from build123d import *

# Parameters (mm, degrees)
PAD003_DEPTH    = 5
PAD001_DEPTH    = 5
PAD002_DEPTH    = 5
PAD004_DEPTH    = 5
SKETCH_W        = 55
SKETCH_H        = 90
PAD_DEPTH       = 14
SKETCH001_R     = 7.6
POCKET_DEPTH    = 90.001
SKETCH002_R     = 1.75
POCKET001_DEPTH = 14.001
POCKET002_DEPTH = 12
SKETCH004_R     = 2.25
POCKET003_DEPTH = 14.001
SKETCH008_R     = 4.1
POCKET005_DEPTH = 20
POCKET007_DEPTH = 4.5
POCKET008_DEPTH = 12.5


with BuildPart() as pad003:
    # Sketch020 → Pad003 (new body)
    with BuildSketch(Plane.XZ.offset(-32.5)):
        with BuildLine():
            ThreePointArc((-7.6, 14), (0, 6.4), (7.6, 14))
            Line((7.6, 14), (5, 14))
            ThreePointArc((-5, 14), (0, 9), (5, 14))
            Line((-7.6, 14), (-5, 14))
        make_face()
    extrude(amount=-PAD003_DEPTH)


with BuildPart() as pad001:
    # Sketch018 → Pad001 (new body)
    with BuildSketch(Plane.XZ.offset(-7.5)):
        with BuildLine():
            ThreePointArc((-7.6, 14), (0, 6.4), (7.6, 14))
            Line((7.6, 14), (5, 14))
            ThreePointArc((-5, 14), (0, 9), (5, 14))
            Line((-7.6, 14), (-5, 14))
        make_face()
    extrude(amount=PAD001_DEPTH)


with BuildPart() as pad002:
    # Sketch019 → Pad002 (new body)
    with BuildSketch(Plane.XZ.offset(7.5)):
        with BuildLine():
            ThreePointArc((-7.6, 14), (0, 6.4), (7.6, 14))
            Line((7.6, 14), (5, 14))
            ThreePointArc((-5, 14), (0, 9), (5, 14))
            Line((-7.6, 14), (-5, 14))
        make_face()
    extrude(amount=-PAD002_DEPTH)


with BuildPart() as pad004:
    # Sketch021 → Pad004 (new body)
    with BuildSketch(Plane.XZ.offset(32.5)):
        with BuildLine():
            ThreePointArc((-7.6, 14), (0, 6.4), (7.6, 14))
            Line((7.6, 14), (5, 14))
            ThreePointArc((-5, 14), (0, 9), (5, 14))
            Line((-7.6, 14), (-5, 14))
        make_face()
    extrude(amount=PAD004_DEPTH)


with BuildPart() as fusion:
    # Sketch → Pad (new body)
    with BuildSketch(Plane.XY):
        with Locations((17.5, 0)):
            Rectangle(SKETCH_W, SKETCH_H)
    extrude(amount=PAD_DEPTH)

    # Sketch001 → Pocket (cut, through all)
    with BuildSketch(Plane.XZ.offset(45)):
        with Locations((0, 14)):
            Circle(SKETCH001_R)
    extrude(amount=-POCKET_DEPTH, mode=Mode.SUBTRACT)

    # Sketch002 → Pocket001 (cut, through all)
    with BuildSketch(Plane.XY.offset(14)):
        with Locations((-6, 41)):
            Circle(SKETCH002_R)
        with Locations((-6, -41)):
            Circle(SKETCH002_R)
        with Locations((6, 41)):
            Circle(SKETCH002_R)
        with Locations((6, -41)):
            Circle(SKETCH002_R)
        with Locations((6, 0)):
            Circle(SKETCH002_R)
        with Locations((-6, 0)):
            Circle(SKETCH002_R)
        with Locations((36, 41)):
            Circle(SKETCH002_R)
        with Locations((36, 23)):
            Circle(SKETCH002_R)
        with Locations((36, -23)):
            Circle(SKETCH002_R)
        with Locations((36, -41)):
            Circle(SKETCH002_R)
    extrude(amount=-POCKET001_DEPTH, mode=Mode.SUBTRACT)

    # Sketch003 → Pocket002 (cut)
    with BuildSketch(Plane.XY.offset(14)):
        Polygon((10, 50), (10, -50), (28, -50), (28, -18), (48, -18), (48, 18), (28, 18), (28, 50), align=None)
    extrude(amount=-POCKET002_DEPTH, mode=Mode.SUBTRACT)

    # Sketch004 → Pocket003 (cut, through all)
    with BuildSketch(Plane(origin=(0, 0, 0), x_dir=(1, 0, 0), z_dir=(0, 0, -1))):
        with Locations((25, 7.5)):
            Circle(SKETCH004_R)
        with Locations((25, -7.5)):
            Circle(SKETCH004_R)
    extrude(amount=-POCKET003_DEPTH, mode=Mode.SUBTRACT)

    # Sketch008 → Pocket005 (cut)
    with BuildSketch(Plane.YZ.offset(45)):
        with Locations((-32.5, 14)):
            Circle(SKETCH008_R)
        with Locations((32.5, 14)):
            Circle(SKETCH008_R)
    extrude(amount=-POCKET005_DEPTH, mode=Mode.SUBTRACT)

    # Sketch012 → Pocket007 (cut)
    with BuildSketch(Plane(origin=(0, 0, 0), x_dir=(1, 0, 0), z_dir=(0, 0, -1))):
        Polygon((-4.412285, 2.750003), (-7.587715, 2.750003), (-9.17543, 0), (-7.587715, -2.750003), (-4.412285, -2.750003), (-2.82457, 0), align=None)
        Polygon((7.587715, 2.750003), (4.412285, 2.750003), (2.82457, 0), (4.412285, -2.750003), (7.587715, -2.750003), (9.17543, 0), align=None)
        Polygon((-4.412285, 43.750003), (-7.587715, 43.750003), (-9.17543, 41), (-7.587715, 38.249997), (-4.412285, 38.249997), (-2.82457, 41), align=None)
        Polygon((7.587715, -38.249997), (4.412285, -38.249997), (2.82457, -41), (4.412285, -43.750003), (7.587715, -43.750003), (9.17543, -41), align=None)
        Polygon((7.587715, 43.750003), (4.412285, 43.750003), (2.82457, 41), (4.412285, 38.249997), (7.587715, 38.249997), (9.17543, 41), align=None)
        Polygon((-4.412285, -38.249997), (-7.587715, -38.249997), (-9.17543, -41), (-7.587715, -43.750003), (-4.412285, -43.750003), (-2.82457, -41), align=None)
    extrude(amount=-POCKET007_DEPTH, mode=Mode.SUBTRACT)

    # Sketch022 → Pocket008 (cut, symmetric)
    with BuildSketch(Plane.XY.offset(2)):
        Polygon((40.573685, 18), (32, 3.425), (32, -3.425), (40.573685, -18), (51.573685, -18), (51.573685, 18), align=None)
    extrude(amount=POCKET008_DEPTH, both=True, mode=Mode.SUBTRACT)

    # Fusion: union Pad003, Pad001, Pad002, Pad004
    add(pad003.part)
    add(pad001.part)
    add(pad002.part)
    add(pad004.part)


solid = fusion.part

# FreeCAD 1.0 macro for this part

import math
import FreeCAD as App
import Part
import Sketcher

V = App.Vector
Q = App.Units.Quantity

doc = App.newDocument("Part")
body = doc.addObject("PartDesign::Body", "Body")

# Sketch on XZ plane
sketch1 = doc.addObject("Sketcher::SketchObject", "Sketch")
body.addObject(sketch1)
sketch1.AttachmentSupport = (doc.XZ_Plane, [""])
sketch1.MapMode = "FlatFace"
sketch1.AttachmentOffset = App.Placement(V(0, 0, -32.5), App.Rotation())
sketch1.addGeometry(Part.ArcOfCircle(Part.Circle(V(0, 14, 0), V(0, 0, 1), 7.6), math.radians(180), math.radians(360)), False)
sketch1.addGeometry(Part.LineSegment(V(7.6, 14, 0), V(5, 14, 0)), False)
sketch1.addGeometry(Part.ArcOfCircle(Part.Circle(V(0, 14, 0), V(0, 0, 1), 5), math.radians(180), math.radians(360)), False)
sketch1.addGeometry(Part.LineSegment(V(-5, 14, 0), V(-7.6, 14, 0)), False)
sketch1.addConstraint(Sketcher.Constraint("Coincident", 0, 2, 1, 1))
sketch1.addConstraint(Sketcher.Constraint("Coincident", 1, 2, 2, 2))
sketch1.addConstraint(Sketcher.Constraint("Coincident", 2, 1, 3, 1))
sketch1.addConstraint(Sketcher.Constraint("Coincident", 3, 2, 0, 1))
sketch1.addConstraint(Sketcher.Constraint("Horizontal", 1))
sketch1.addConstraint(Sketcher.Constraint("Horizontal", 3))
sketch1.addConstraint(Sketcher.Constraint("Coincident", 2, 3, 0, 3))
sketch1.addConstraint(Sketcher.Constraint("Symmetric", 1, 2, 2, 1, -2))
sketch1.addConstraint(Sketcher.Constraint("Horizontal", 2, 3, 0, 2))
sketch1.addConstraint(Sketcher.Constraint("Radius", 2, Q("5 mm")))
sketch1.addConstraint(Sketcher.Constraint("Radius", 0, Q("7.6 mm")))
sketch1.addConstraint(Sketcher.Constraint("DistanceY", -1, 1, 0, 3, Q("14 mm")))
pad1 = doc.addObject("PartDesign::Pad", "Pad")
body.addObject(pad1)
pad1.Profile = sketch1
pad1.Length = 5
pad1.Reversed = True
body2 = doc.addObject("PartDesign::Body", "Body001")

# Sketch on XZ plane
sketch2 = doc.addObject("Sketcher::SketchObject", "Sketch001")
body2.addObject(sketch2)
sketch2.AttachmentSupport = (doc.getObject("XZ_Plane001"), [""])
sketch2.MapMode = "FlatFace"
sketch2.AttachmentOffset = App.Placement(V(0, 0, -7.5), App.Rotation())
sketch2.addGeometry(Part.ArcOfCircle(Part.Circle(V(0, 14, 0), V(0, 0, 1), 7.6), math.radians(180), math.radians(360)), False)
sketch2.addGeometry(Part.LineSegment(V(7.6, 14, 0), V(5, 14, 0)), False)
sketch2.addGeometry(Part.ArcOfCircle(Part.Circle(V(0, 14, 0), V(0, 0, 1), 5), math.radians(180), math.radians(360)), False)
sketch2.addGeometry(Part.LineSegment(V(-5, 14, 0), V(-7.6, 14, 0)), False)
sketch2.addConstraint(Sketcher.Constraint("Coincident", 0, 2, 1, 1))
sketch2.addConstraint(Sketcher.Constraint("Coincident", 1, 2, 2, 2))
sketch2.addConstraint(Sketcher.Constraint("Coincident", 2, 1, 3, 1))
sketch2.addConstraint(Sketcher.Constraint("Coincident", 3, 2, 0, 1))
sketch2.addConstraint(Sketcher.Constraint("Horizontal", 1))
sketch2.addConstraint(Sketcher.Constraint("Horizontal", 3))
sketch2.addConstraint(Sketcher.Constraint("Coincident", 2, 3, 0, 3))
sketch2.addConstraint(Sketcher.Constraint("Symmetric", 1, 2, 2, 1, -2))
sketch2.addConstraint(Sketcher.Constraint("Horizontal", 2, 3, 0, 2))
sketch2.addConstraint(Sketcher.Constraint("Radius", 2, Q("5 mm")))
sketch2.addConstraint(Sketcher.Constraint("Radius", 0, Q("7.6 mm")))
sketch2.addConstraint(Sketcher.Constraint("DistanceY", -1, 1, 0, 3, Q("14 mm")))
pad2 = doc.addObject("PartDesign::Pad", "Pad001")
body2.addObject(pad2)
pad2.Profile = sketch2
pad2.Length = 5
body3 = doc.addObject("PartDesign::Body", "Body002")

# Sketch on XZ plane
sketch3 = doc.addObject("Sketcher::SketchObject", "Sketch002")
body3.addObject(sketch3)
sketch3.AttachmentSupport = (doc.getObject("XZ_Plane002"), [""])
sketch3.MapMode = "FlatFace"
sketch3.AttachmentOffset = App.Placement(V(0, 0, 7.5), App.Rotation())
sketch3.addGeometry(Part.ArcOfCircle(Part.Circle(V(0, 14, 0), V(0, 0, 1), 7.6), math.radians(180), math.radians(360)), False)
sketch3.addGeometry(Part.LineSegment(V(7.6, 14, 0), V(5, 14, 0)), False)
sketch3.addGeometry(Part.ArcOfCircle(Part.Circle(V(0, 14, 0), V(0, 0, 1), 5), math.radians(180), math.radians(360)), False)
sketch3.addGeometry(Part.LineSegment(V(-5, 14, 0), V(-7.6, 14, 0)), False)
sketch3.addConstraint(Sketcher.Constraint("Coincident", 0, 2, 1, 1))
sketch3.addConstraint(Sketcher.Constraint("Coincident", 1, 2, 2, 2))
sketch3.addConstraint(Sketcher.Constraint("Coincident", 2, 1, 3, 1))
sketch3.addConstraint(Sketcher.Constraint("Coincident", 3, 2, 0, 1))
sketch3.addConstraint(Sketcher.Constraint("Horizontal", 1))
sketch3.addConstraint(Sketcher.Constraint("Horizontal", 3))
sketch3.addConstraint(Sketcher.Constraint("Coincident", 2, 3, 0, 3))
sketch3.addConstraint(Sketcher.Constraint("Symmetric", 1, 2, 2, 1, -2))
sketch3.addConstraint(Sketcher.Constraint("Horizontal", 2, 3, 0, 2))
sketch3.addConstraint(Sketcher.Constraint("Radius", 2, Q("5 mm")))
sketch3.addConstraint(Sketcher.Constraint("Radius", 0, Q("7.6 mm")))
sketch3.addConstraint(Sketcher.Constraint("DistanceY", -1, 1, 0, 3, Q("14 mm")))
pad3 = doc.addObject("PartDesign::Pad", "Pad002")
body3.addObject(pad3)
pad3.Profile = sketch3
pad3.Length = 5
pad3.Reversed = True
body4 = doc.addObject("PartDesign::Body", "Body003")

# Sketch on XZ plane
sketch4 = doc.addObject("Sketcher::SketchObject", "Sketch003")
body4.addObject(sketch4)
sketch4.AttachmentSupport = (doc.getObject("XZ_Plane003"), [""])
sketch4.MapMode = "FlatFace"
sketch4.AttachmentOffset = App.Placement(V(0, 0, 32.5), App.Rotation())
sketch4.addGeometry(Part.ArcOfCircle(Part.Circle(V(0, 14, 0), V(0, 0, 1), 7.6), math.radians(180), math.radians(360)), False)
sketch4.addGeometry(Part.LineSegment(V(7.6, 14, 0), V(5, 14, 0)), False)
sketch4.addGeometry(Part.ArcOfCircle(Part.Circle(V(0, 14, 0), V(0, 0, 1), 5), math.radians(180), math.radians(360)), False)
sketch4.addGeometry(Part.LineSegment(V(-5, 14, 0), V(-7.6, 14, 0)), False)
sketch4.addConstraint(Sketcher.Constraint("Coincident", 0, 2, 1, 1))
sketch4.addConstraint(Sketcher.Constraint("Coincident", 1, 2, 2, 2))
sketch4.addConstraint(Sketcher.Constraint("Coincident", 2, 1, 3, 1))
sketch4.addConstraint(Sketcher.Constraint("Coincident", 3, 2, 0, 1))
sketch4.addConstraint(Sketcher.Constraint("Horizontal", 1))
sketch4.addConstraint(Sketcher.Constraint("Horizontal", 3))
sketch4.addConstraint(Sketcher.Constraint("Coincident", 2, 3, 0, 3))
sketch4.addConstraint(Sketcher.Constraint("Symmetric", 1, 2, 2, 1, -2))
sketch4.addConstraint(Sketcher.Constraint("Horizontal", 2, 3, 0, 2))
sketch4.addConstraint(Sketcher.Constraint("Radius", 2, Q("5 mm")))
sketch4.addConstraint(Sketcher.Constraint("Radius", 0, Q("7.6 mm")))
sketch4.addConstraint(Sketcher.Constraint("DistanceY", -1, 1, 0, 3, Q("14 mm")))
pad4 = doc.addObject("PartDesign::Pad", "Pad003")
body4.addObject(pad4)
pad4.Profile = sketch4
pad4.Length = 5
body5 = doc.addObject("PartDesign::Body", "Body004")

# Sketch on XY plane
sketch5 = doc.addObject("Sketcher::SketchObject", "Sketch004")
body5.addObject(sketch5)
sketch5.AttachmentSupport = (doc.getObject("XY_Plane004"), [""])
sketch5.MapMode = "FlatFace"
sketch5.addGeometry(Part.LineSegment(V(-10, 45, 0), V(-10, -45, 0)), False)
sketch5.addGeometry(Part.LineSegment(V(-10, -45, 0), V(45, -45, 0)), False)
sketch5.addGeometry(Part.LineSegment(V(45, -45, 0), V(45, 45, 0)), False)
sketch5.addGeometry(Part.LineSegment(V(45, 45, 0), V(-10, 45, 0)), False)
sketch5.addConstraint(Sketcher.Constraint("Coincident", 0, 2, 1, 1))
sketch5.addConstraint(Sketcher.Constraint("Coincident", 1, 2, 2, 1))
sketch5.addConstraint(Sketcher.Constraint("Coincident", 2, 2, 3, 1))
sketch5.addConstraint(Sketcher.Constraint("Coincident", 3, 2, 0, 1))
sketch5.addConstraint(Sketcher.Constraint("Vertical", 0))
sketch5.addConstraint(Sketcher.Constraint("Horizontal", 1))
sketch5.addConstraint(Sketcher.Constraint("Vertical", 2))
sketch5.addConstraint(Sketcher.Constraint("Horizontal", 3))
sketch5.addConstraint(Sketcher.Constraint("DistanceX", 1, 1, 1, 2, Q("55 mm")))
sketch5.addConstraint(Sketcher.Constraint("DistanceY", 0, 2, 0, 1, Q("90 mm")))
sketch5.addConstraint(Sketcher.Constraint("DistanceX", 0, 2, -1, 1, Q("10 mm")))
sketch5.addConstraint(Sketcher.Constraint("DistanceY", 0, 2, -1, 1, Q("45 mm")))
pad5 = doc.addObject("PartDesign::Pad", "Pad004")
body5.addObject(pad5)
pad5.Profile = sketch5
pad5.Length = 14

# Sketch on XZ plane
sketch6 = doc.addObject("Sketcher::SketchObject", "Sketch005")
body5.addObject(sketch6)
sketch6.AttachmentSupport = (doc.getObject("XZ_Plane004"), [""])
sketch6.MapMode = "FlatFace"
sketch6.AttachmentOffset = App.Placement(V(0, 0, 45), App.Rotation())
sketch6.addGeometry(Part.Circle(V(0, 14, 0), V(0, 0, 1), 8), False)
sketch6.addConstraint(Sketcher.Constraint("PointOnObject", 0, 3, -2))
sketch6.addConstraint(Sketcher.Constraint("Diameter", 0, Q("15.2 mm")))
sketch6.addConstraint(Sketcher.Constraint("DistanceY", -1, 1, 0, 3, Q("14 mm")))
pocket1 = doc.addObject("PartDesign::Pocket", "Pocket")
body5.addObject(pocket1)
pocket1.Profile = sketch6
pocket1.Type = "ThroughAll"

# Sketch on XY plane
sketch7 = doc.addObject("Sketcher::SketchObject", "Sketch006")
body5.addObject(sketch7)
sketch7.AttachmentSupport = (doc.getObject("XY_Plane004"), [""])
sketch7.MapMode = "FlatFace"
sketch7.AttachmentOffset = App.Placement(V(0, 0, 14), App.Rotation())
sketch7.addGeometry(Part.Circle(V(-6, 41, 0), V(0, 0, 1), 1.8), False)
sketch7.addGeometry(Part.Circle(V(-6, -41, 0), V(0, 0, 1), 1.8), False)
sketch7.addGeometry(Part.Circle(V(6, 41, 0), V(0, 0, 1), 1.8), False)
sketch7.addGeometry(Part.Circle(V(6, -41, 0), V(0, 0, 1), 1.8), False)
sketch7.addGeometry(Part.Circle(V(6, 0, 0), V(0, 0, 1), 1.8), False)
sketch7.addGeometry(Part.Circle(V(-6, 0, 0), V(0, 0, 1), 1.8), False)
sketch7.addGeometry(Part.Circle(V(36, 41, 0), V(0, 0, 1), 1.8), False)
sketch7.addGeometry(Part.Circle(V(36, 23, 0), V(0, 0, 1), 1.8), False)
sketch7.addGeometry(Part.Circle(V(36, -23, 0), V(0, 0, 1), 1.8), False)
sketch7.addGeometry(Part.Circle(V(36, -41, 0), V(0, 0, 1), 1.8), False)
sketch7.addConstraint(Sketcher.Constraint("Equal", 0, 1))
sketch7.addConstraint(Sketcher.Constraint("Equal", 1, 2))
sketch7.addConstraint(Sketcher.Constraint("Equal", 2, 3))
sketch7.addConstraint(Sketcher.Constraint("Equal", 3, 4))
sketch7.addConstraint(Sketcher.Constraint("Equal", 4, 5))
sketch7.addConstraint(Sketcher.Constraint("Equal", 5, 6))
sketch7.addConstraint(Sketcher.Constraint("Equal", 6, 7))
sketch7.addConstraint(Sketcher.Constraint("Equal", 7, 8))
sketch7.addConstraint(Sketcher.Constraint("Equal", 8, 9))
sketch7.addConstraint(Sketcher.Constraint("Symmetric", 1, 3, 2, 3, -1, 1))
sketch7.addConstraint(Sketcher.Constraint("Symmetric", 0, 3, 3, 3, -1, 1))
sketch7.addConstraint(Sketcher.Constraint("Symmetric", 4, 3, 5, 3, -1, 1))
sketch7.addConstraint(Sketcher.Constraint("Symmetric", 0, 3, 2, 3, -2))
sketch7.addConstraint(Sketcher.Constraint("Symmetric", 7, 3, 8, 3, -1))
sketch7.addConstraint(Sketcher.Constraint("Symmetric", 6, 3, 9, 3, -1))
sketch7.addConstraint(Sketcher.Constraint("PointOnObject", 4, 3, -1))
sketch7.addConstraint(Sketcher.Constraint("Horizontal", 2, 3, 6, 3))
sketch7.addConstraint(Sketcher.Constraint("Vertical", 3, 3, 4, 3))
sketch7.addConstraint(Sketcher.Constraint("Vertical", 6, 3, 7, 3))
sketch7.addConstraint(Sketcher.Constraint("Diameter", 0, Q("3.5 mm")))
sketch7.addConstraint(Sketcher.Constraint("DistanceX", 0, 3, -1, 1, Q("6 mm")))
sketch7.addConstraint(Sketcher.Constraint("DistanceY", -1, 1, 0, 3, Q("41 mm")))
sketch7.addConstraint(Sketcher.Constraint("DistanceX", -1, 1, 6, 3, Q("36 mm")))
sketch7.addConstraint(Sketcher.Constraint("DistanceY", -1, 1, 7, 3, Q("23 mm")))
pocket2 = doc.addObject("PartDesign::Pocket", "Pocket001")
body5.addObject(pocket2)
pocket2.Profile = sketch7
pocket2.Type = "ThroughAll"

# Sketch on XY plane
sketch8 = doc.addObject("Sketcher::SketchObject", "Sketch007")
body5.addObject(sketch8)
sketch8.AttachmentSupport = (doc.getObject("XY_Plane004"), [""])
sketch8.MapMode = "FlatFace"
sketch8.AttachmentOffset = App.Placement(V(0, 0, 14), App.Rotation())
sketch8.addGeometry(Part.LineSegment(V(10, 50, 0), V(10, -50, 0)), False)
sketch8.addGeometry(Part.LineSegment(V(10, -50, 0), V(28, -50, 0)), False)
sketch8.addGeometry(Part.LineSegment(V(28, -50, 0), V(28, -18, 0)), False)
sketch8.addGeometry(Part.LineSegment(V(28, -18, 0), V(48, -18, 0)), False)
sketch8.addGeometry(Part.LineSegment(V(48, -18, 0), V(48, 18, 0)), False)
sketch8.addGeometry(Part.LineSegment(V(48, 18, 0), V(28, 18, 0)), False)
sketch8.addGeometry(Part.LineSegment(V(28, 18, 0), V(28, 50, 0)), False)
sketch8.addGeometry(Part.LineSegment(V(28, 50, 0), V(10, 50, 0)), False)
sketch8.addConstraint(Sketcher.Constraint("Coincident", 0, 2, 1, 1))
sketch8.addConstraint(Sketcher.Constraint("Coincident", 1, 2, 2, 1))
sketch8.addConstraint(Sketcher.Constraint("Coincident", 2, 2, 3, 1))
sketch8.addConstraint(Sketcher.Constraint("Coincident", 3, 2, 4, 1))
sketch8.addConstraint(Sketcher.Constraint("Coincident", 4, 2, 5, 1))
sketch8.addConstraint(Sketcher.Constraint("Coincident", 5, 2, 6, 1))
sketch8.addConstraint(Sketcher.Constraint("Coincident", 6, 2, 7, 1))
sketch8.addConstraint(Sketcher.Constraint("Coincident", 7, 2, 0, 1))
sketch8.addConstraint(Sketcher.Constraint("Vertical", 0))
sketch8.addConstraint(Sketcher.Constraint("Horizontal", 1))
sketch8.addConstraint(Sketcher.Constraint("Vertical", 2))
sketch8.addConstraint(Sketcher.Constraint("Horizontal", 3))
sketch8.addConstraint(Sketcher.Constraint("Vertical", 4))
sketch8.addConstraint(Sketcher.Constraint("Horizontal", 5))
sketch8.addConstraint(Sketcher.Constraint("Vertical", 6))
sketch8.addConstraint(Sketcher.Constraint("Horizontal", 7))
sketch8.addConstraint(Sketcher.Constraint("Symmetric", 2, 2, 5, 2, -1))
sketch8.addConstraint(Sketcher.Constraint("Equal", 2, 6))
sketch8.addConstraint(Sketcher.Constraint("DistanceX", 1, 1, 1, 2, Q("18 mm")))
sketch8.addConstraint(Sketcher.Constraint("DistanceX", 3, 1, 3, 2, Q("20 mm")))
sketch8.addConstraint(Sketcher.Constraint("DistanceY", 0, 2, 0, 1, Q("100 mm")))
sketch8.addConstraint(Sketcher.Constraint("DistanceY", 2, 1, 2, 2, Q("32 mm")))
sketch8.addConstraint(Sketcher.Constraint("DistanceX", -1, 1, 0, 2, Q("10 mm")))
pocket3 = doc.addObject("PartDesign::Pocket", "Pocket002")
body5.addObject(pocket3)
pocket3.Profile = sketch8
pocket3.Length = 12

# Sketch on XY plane
sketch9 = doc.addObject("Sketcher::SketchObject", "Sketch008")
body5.addObject(sketch9)
sketch9.AttachmentSupport = (doc.getObject("XY_Plane004"), [""])
sketch9.MapMode = "FlatFace"
sketch9.addGeometry(Part.Circle(V(25, -7.5, 0), V(0, 0, 1), 2.2), False)
sketch9.addGeometry(Part.Circle(V(25, 7.5, 0), V(0, 0, 1), 2.2), False)
sketch9.addConstraint(Sketcher.Constraint("Equal", 0, 1))
sketch9.addConstraint(Sketcher.Constraint("Symmetric", 0, 3, 1, 3, -1))
sketch9.addConstraint(Sketcher.Constraint("Diameter", 0, Q("4.5 mm")))
sketch9.addConstraint(Sketcher.Constraint("DistanceX", -1, 1, 0, 3, Q("25 mm")))
sketch9.addConstraint(Sketcher.Constraint("DistanceY", 0, 3, 1, 3, Q("15 mm")))
pocket4 = doc.addObject("PartDesign::Pocket", "Pocket003")
body5.addObject(pocket4)
pocket4.Profile = sketch9
pocket4.Type = "ThroughAll"
pocket4.Reversed = True

# Sketch on YZ plane
sketch10 = doc.addObject("Sketcher::SketchObject", "Sketch009")
body5.addObject(sketch10)
sketch10.AttachmentSupport = (doc.getObject("YZ_Plane004"), [""])
sketch10.MapMode = "FlatFace"
sketch10.AttachmentOffset = App.Placement(V(0, 0, 45), App.Rotation())
sketch10.addGeometry(Part.Circle(V(-32.5, 14, 0), V(0, 0, 1), 4.1), False)
sketch10.addGeometry(Part.Circle(V(32.5, 14, 0), V(0, 0, 1), 4.1), False)
sketch10.addConstraint(Sketcher.Constraint("Equal", 0, 1))
sketch10.addConstraint(Sketcher.Constraint("Symmetric", 0, 3, 1, 3, -2))
sketch10.addConstraint(Sketcher.Constraint("Diameter", 0, Q("8.2 mm")))
sketch10.addConstraint(Sketcher.Constraint("DistanceY", -1, 1, 0, 3, Q("14 mm")))
sketch10.addConstraint(Sketcher.Constraint("DistanceX", 0, 3, 1, 3, Q("65 mm")))
pocket5 = doc.addObject("PartDesign::Pocket", "Pocket004")
body5.addObject(pocket5)
pocket5.Profile = sketch10
pocket5.Length = 20

# Sketch on XY plane
sketch11 = doc.addObject("Sketcher::SketchObject", "Sketch010")
body5.addObject(sketch11)
sketch11.AttachmentSupport = (doc.getObject("XY_Plane004"), [""])
sketch11.MapMode = "FlatFace"
sketch11.addGeometry(Part.LineSegment(V(-4.4, -2.8, 0), V(-7.6, -2.8, 0)), False)
sketch11.addGeometry(Part.LineSegment(V(-7.6, -2.8, 0), V(-9.2, 0, 0)), False)
sketch11.addGeometry(Part.LineSegment(V(-9.2, 0, 0), V(-7.6, 2.8, 0)), False)
sketch11.addGeometry(Part.LineSegment(V(-7.6, 2.8, 0), V(-4.4, 2.8, 0)), False)
sketch11.addGeometry(Part.LineSegment(V(-4.4, 2.8, 0), V(-2.8, 0, 0)), False)
sketch11.addGeometry(Part.LineSegment(V(-2.8, 0, 0), V(-4.4, -2.8, 0)), False)
sketch11.addGeometry(Part.LineSegment(V(7.6, -2.8, 0), V(4.4, -2.8, 0)), False)
sketch11.addGeometry(Part.LineSegment(V(4.4, -2.8, 0), V(2.8, 0, 0)), False)
sketch11.addGeometry(Part.LineSegment(V(2.8, 0, 0), V(4.4, 2.8, 0)), False)
sketch11.addGeometry(Part.LineSegment(V(4.4, 2.8, 0), V(7.6, 2.8, 0)), False)
sketch11.addGeometry(Part.LineSegment(V(7.6, 2.8, 0), V(9.2, 0, 0)), False)
sketch11.addGeometry(Part.LineSegment(V(9.2, 0, 0), V(7.6, -2.8, 0)), False)
sketch11.addGeometry(Part.LineSegment(V(-4.4, -43.8, 0), V(-7.6, -43.8, 0)), False)
sketch11.addGeometry(Part.LineSegment(V(-7.6, -43.8, 0), V(-9.2, -41, 0)), False)
sketch11.addGeometry(Part.LineSegment(V(-9.2, -41, 0), V(-7.6, -38.2, 0)), False)
sketch11.addGeometry(Part.LineSegment(V(-7.6, -38.2, 0), V(-4.4, -38.2, 0)), False)
sketch11.addGeometry(Part.LineSegment(V(-4.4, -38.2, 0), V(-2.8, -41, 0)), False)
sketch11.addGeometry(Part.LineSegment(V(-2.8, -41, 0), V(-4.4, -43.8, 0)), False)
sketch11.addGeometry(Part.LineSegment(V(7.6, 38.2, 0), V(4.4, 38.2, 0)), False)
sketch11.addGeometry(Part.LineSegment(V(4.4, 38.2, 0), V(2.8, 41, 0)), False)
sketch11.addGeometry(Part.LineSegment(V(2.8, 41, 0), V(4.4, 43.8, 0)), False)
sketch11.addGeometry(Part.LineSegment(V(4.4, 43.8, 0), V(7.6, 43.8, 0)), False)
sketch11.addGeometry(Part.LineSegment(V(7.6, 43.8, 0), V(9.2, 41, 0)), False)
sketch11.addGeometry(Part.LineSegment(V(9.2, 41, 0), V(7.6, 38.2, 0)), False)
sketch11.addGeometry(Part.LineSegment(V(7.6, -43.8, 0), V(4.4, -43.8, 0)), False)
sketch11.addGeometry(Part.LineSegment(V(4.4, -43.8, 0), V(2.8, -41, 0)), False)
sketch11.addGeometry(Part.LineSegment(V(2.8, -41, 0), V(4.4, -38.2, 0)), False)
sketch11.addGeometry(Part.LineSegment(V(4.4, -38.2, 0), V(7.6, -38.2, 0)), False)
sketch11.addGeometry(Part.LineSegment(V(7.6, -38.2, 0), V(9.2, -41, 0)), False)
sketch11.addGeometry(Part.LineSegment(V(9.2, -41, 0), V(7.6, -43.8, 0)), False)
sketch11.addGeometry(Part.LineSegment(V(-4.4, 38.2, 0), V(-7.6, 38.2, 0)), False)
sketch11.addGeometry(Part.LineSegment(V(-7.6, 38.2, 0), V(-9.2, 41, 0)), False)
sketch11.addGeometry(Part.LineSegment(V(-9.2, 41, 0), V(-7.6, 43.8, 0)), False)
sketch11.addGeometry(Part.LineSegment(V(-7.6, 43.8, 0), V(-4.4, 43.8, 0)), False)
sketch11.addGeometry(Part.LineSegment(V(-4.4, 43.8, 0), V(-2.8, 41, 0)), False)
sketch11.addGeometry(Part.LineSegment(V(-2.8, 41, 0), V(-4.4, 38.2, 0)), False)
sketch11.addConstraint(Sketcher.Constraint("Coincident", 0, 2, 1, 1))
sketch11.addConstraint(Sketcher.Constraint("Coincident", 1, 2, 2, 1))
sketch11.addConstraint(Sketcher.Constraint("Coincident", 2, 2, 3, 1))
sketch11.addConstraint(Sketcher.Constraint("Coincident", 3, 2, 4, 1))
sketch11.addConstraint(Sketcher.Constraint("Coincident", 4, 2, 5, 1))
sketch11.addConstraint(Sketcher.Constraint("Coincident", 5, 2, 0, 1))
sketch11.addConstraint(Sketcher.Constraint("Coincident", 6, 2, 7, 1))
sketch11.addConstraint(Sketcher.Constraint("Coincident", 7, 2, 8, 1))
sketch11.addConstraint(Sketcher.Constraint("Coincident", 8, 2, 9, 1))
sketch11.addConstraint(Sketcher.Constraint("Coincident", 9, 2, 10, 1))
sketch11.addConstraint(Sketcher.Constraint("Coincident", 10, 2, 11, 1))
sketch11.addConstraint(Sketcher.Constraint("Coincident", 11, 2, 6, 1))
sketch11.addConstraint(Sketcher.Constraint("Coincident", 12, 2, 13, 1))
sketch11.addConstraint(Sketcher.Constraint("Coincident", 13, 2, 14, 1))
sketch11.addConstraint(Sketcher.Constraint("Coincident", 14, 2, 15, 1))
sketch11.addConstraint(Sketcher.Constraint("Coincident", 15, 2, 16, 1))
sketch11.addConstraint(Sketcher.Constraint("Coincident", 16, 2, 17, 1))
sketch11.addConstraint(Sketcher.Constraint("Coincident", 17, 2, 12, 1))
sketch11.addConstraint(Sketcher.Constraint("Coincident", 18, 2, 19, 1))
sketch11.addConstraint(Sketcher.Constraint("Coincident", 19, 2, 20, 1))
sketch11.addConstraint(Sketcher.Constraint("Coincident", 20, 2, 21, 1))
sketch11.addConstraint(Sketcher.Constraint("Coincident", 21, 2, 22, 1))
sketch11.addConstraint(Sketcher.Constraint("Coincident", 22, 2, 23, 1))
sketch11.addConstraint(Sketcher.Constraint("Coincident", 23, 2, 18, 1))
sketch11.addConstraint(Sketcher.Constraint("Coincident", 24, 2, 25, 1))
sketch11.addConstraint(Sketcher.Constraint("Coincident", 25, 2, 26, 1))
sketch11.addConstraint(Sketcher.Constraint("Coincident", 26, 2, 27, 1))
sketch11.addConstraint(Sketcher.Constraint("Coincident", 27, 2, 28, 1))
sketch11.addConstraint(Sketcher.Constraint("Coincident", 28, 2, 29, 1))
sketch11.addConstraint(Sketcher.Constraint("Coincident", 29, 2, 24, 1))
sketch11.addConstraint(Sketcher.Constraint("Coincident", 30, 2, 31, 1))
sketch11.addConstraint(Sketcher.Constraint("Coincident", 31, 2, 32, 1))
sketch11.addConstraint(Sketcher.Constraint("Coincident", 32, 2, 33, 1))
sketch11.addConstraint(Sketcher.Constraint("Coincident", 33, 2, 34, 1))
sketch11.addConstraint(Sketcher.Constraint("Coincident", 34, 2, 35, 1))
sketch11.addConstraint(Sketcher.Constraint("Coincident", 35, 2, 30, 1))
sketch11.addConstraint(Sketcher.Constraint("Horizontal", 0))
sketch11.addConstraint(Sketcher.Constraint("Horizontal", 3))
sketch11.addConstraint(Sketcher.Constraint("Horizontal", 6))
sketch11.addConstraint(Sketcher.Constraint("Horizontal", 9))
sketch11.addConstraint(Sketcher.Constraint("Horizontal", 12))
sketch11.addConstraint(Sketcher.Constraint("Horizontal", 15))
sketch11.addConstraint(Sketcher.Constraint("Horizontal", 18))
sketch11.addConstraint(Sketcher.Constraint("Horizontal", 21))
sketch11.addConstraint(Sketcher.Constraint("Horizontal", 24))
sketch11.addConstraint(Sketcher.Constraint("Horizontal", 27))
sketch11.addConstraint(Sketcher.Constraint("Horizontal", 30))
sketch11.addConstraint(Sketcher.Constraint("Horizontal", 33))
sketch11.addConstraint(Sketcher.Constraint("Symmetric", 3, 2, 6, 2, -1, 1))
sketch11.addConstraint(Sketcher.Constraint("Symmetric", 4, 2, 7, 2, -1, 1))
sketch11.addConstraint(Sketcher.Constraint("Symmetric", 5, 2, 8, 2, -1, 1))
sketch11.addConstraint(Sketcher.Constraint("Symmetric", 1, 2, 10, 2, -1, 1))
sketch11.addConstraint(Sketcher.Constraint("Symmetric", 15, 2, 18, 2, -1, 1))
sketch11.addConstraint(Sketcher.Constraint("Symmetric", 16, 2, 19, 2, -1, 1))
sketch11.addConstraint(Sketcher.Constraint("Symmetric", 17, 2, 20, 2, -1, 1))
sketch11.addConstraint(Sketcher.Constraint("Symmetric", 13, 2, 22, 2, -1, 1))
sketch11.addConstraint(Sketcher.Constraint("Symmetric", 27, 2, 30, 2, -1, 1))
sketch11.addConstraint(Sketcher.Constraint("Symmetric", 28, 2, 31, 2, -1, 1))
sketch11.addConstraint(Sketcher.Constraint("Symmetric", 29, 2, 32, 2, -1, 1))
sketch11.addConstraint(Sketcher.Constraint("Symmetric", 25, 2, 34, 2, -1, 1))
sketch11.addConstraint(Sketcher.Constraint("Symmetric", 5, 2, 6, 2, -2))
sketch11.addConstraint(Sketcher.Constraint("Symmetric", 17, 2, 24, 2, -2))
sketch11.addConstraint(Sketcher.Constraint("Symmetric", 16, 2, 25, 2, -2))
sketch11.addConstraint(Sketcher.Constraint("Symmetric", 15, 2, 26, 2, -2))
sketch11.addConstraint(Sketcher.Constraint("Symmetric", 13, 2, 28, 2, -2))
sketch11.addConstraint(Sketcher.Constraint("PointOnObject", 1, 2, -1))
sketch11.addConstraint(Sketcher.Constraint("PointOnObject", 4, 2, -1))
sketch11.addConstraint(Sketcher.Constraint("Parallel", 1, 4))
sketch11.addConstraint(Sketcher.Constraint("Parallel", 2, 5))
sketch11.addConstraint(Sketcher.Constraint("Parallel", 7, 10))
sketch11.addConstraint(Sketcher.Constraint("Parallel", 8, 11))
sketch11.addConstraint(Sketcher.Constraint("Parallel", 10, 13))
sketch11.addConstraint(Sketcher.Constraint("Parallel", 11, 14))
sketch11.addConstraint(Sketcher.Constraint("Parallel", 13, 16))
sketch11.addConstraint(Sketcher.Constraint("Parallel", 14, 17))
sketch11.addConstraint(Sketcher.Constraint("Parallel", 19, 22))
sketch11.addConstraint(Sketcher.Constraint("Parallel", 20, 23))
sketch11.addConstraint(Sketcher.Constraint("Parallel", 25, 28))
sketch11.addConstraint(Sketcher.Constraint("Parallel", 26, 29))
sketch11.addConstraint(Sketcher.Constraint("Parallel", 31, 34))
sketch11.addConstraint(Sketcher.Constraint("Parallel", 32, 35))
sketch11.addConstraint(Sketcher.Constraint("Horizontal", 13, 2, 16, 2))
sketch11.addConstraint(Sketcher.Constraint("Vertical", 2, 2, 12, 2))
sketch11.addConstraint(Sketcher.Constraint("Vertical", 1, 2, 13, 2))
sketch11.addConstraint(Sketcher.Constraint("Vertical", 12, 2, 14, 2))
sketch11.addConstraint(Sketcher.Constraint("Vertical", 5, 2, 15, 2))
sketch11.addConstraint(Sketcher.Constraint("Angle", 1, Q("120 deg")))
sketch11.addConstraint(Sketcher.Constraint("DistanceY", 13, 2, -1, 1, Q("41 mm")))
sketch11.addConstraint(Sketcher.Constraint("DistanceX", 0, 2, 6, 2, Q("12 mm")))
sketch11.addConstraint(Sketcher.Constraint("DistanceX", 0, 2, 0, 1, Q("3.17543 mm")))
sketch11.addConstraint(Sketcher.Constraint("Distance", 1, Q("3.17543 mm")))
pocket6 = doc.addObject("PartDesign::Pocket", "Pocket005")
body5.addObject(pocket6)
pocket6.Profile = sketch11
pocket6.Length = 4.5
pocket6.Reversed = True

# Sketch on XY plane
sketch12 = doc.addObject("Sketcher::SketchObject", "Sketch011")
body5.addObject(sketch12)
sketch12.AttachmentSupport = (doc.getObject("XY_Plane004"), [""])
sketch12.MapMode = "FlatFace"
sketch12.AttachmentOffset = App.Placement(V(0, 0, 2), App.Rotation())
sketch12.addGeometry(Part.LineSegment(V(41, 18, 0), V(32, 3, 0)), False)
sketch12.addGeometry(Part.LineSegment(V(32, 3, 0), V(32, -3, 0)), False)
sketch12.addGeometry(Part.LineSegment(V(32, -3, 0), V(41, -18, 0)), False)
sketch12.addGeometry(Part.LineSegment(V(41, -18, 0), V(52, -18, 0)), False)
sketch12.addGeometry(Part.LineSegment(V(52, -18, 0), V(52, 18, 0)), False)
sketch12.addGeometry(Part.LineSegment(V(52, 18, 0), V(41, 18, 0)), False)
sketch12.addConstraint(Sketcher.Constraint("Coincident", 0, 2, 1, 1))
sketch12.addConstraint(Sketcher.Constraint("Coincident", 1, 2, 2, 1))
sketch12.addConstraint(Sketcher.Constraint("Coincident", 2, 2, 3, 1))
sketch12.addConstraint(Sketcher.Constraint("Coincident", 3, 2, 4, 1))
sketch12.addConstraint(Sketcher.Constraint("Coincident", 4, 2, 5, 1))
sketch12.addConstraint(Sketcher.Constraint("Coincident", 5, 2, 0, 1))
sketch12.addConstraint(Sketcher.Constraint("Vertical", 1))
sketch12.addConstraint(Sketcher.Constraint("Horizontal", 3))
sketch12.addConstraint(Sketcher.Constraint("Vertical", 4))
sketch12.addConstraint(Sketcher.Constraint("Horizontal", 5))
sketch12.addConstraint(Sketcher.Constraint("Symmetric", 2, 2, 5, 2, -1))
sketch12.addConstraint(Sketcher.Constraint("Equal", 0, 2))
sketch12.addConstraint(Sketcher.Constraint("DistanceX", 3, 1, 3, 2, Q("11 mm")))
sketch12.addConstraint(Sketcher.Constraint("DistanceY", 4, 1, 4, 2, Q("36 mm")))
sketch12.addConstraint(Sketcher.Constraint("DistanceX", -1, 1, 0, 2, Q("32 mm")))
sketch12.addConstraint(Sketcher.Constraint("DistanceY", 1, 2, 1, 1, Q("6.85 mm")))
sketch12.addConstraint(Sketcher.Constraint("Distance", 0, Q("16.909722 mm")))
pocket7 = doc.addObject("PartDesign::Pocket", "Pocket006")
body5.addObject(pocket7)
pocket7.Profile = sketch12
pocket7.Length = 25
pocket7.Midplane = True
doc.recompute()

boolean = doc.addObject("PartDesign::Boolean", "Boolean")
body5.addObject(boolean)
boolean.Type = "Fuse"
boolean.addObjects([body])
doc.recompute()

boolean2 = doc.addObject("PartDesign::Boolean", "Boolean001")
body5.addObject(boolean2)
boolean2.Type = "Fuse"
boolean2.addObjects([body2])
doc.recompute()

boolean3 = doc.addObject("PartDesign::Boolean", "Boolean002")
body5.addObject(boolean3)
boolean3.Type = "Fuse"
boolean3.addObjects([body3])
doc.recompute()

boolean4 = doc.addObject("PartDesign::Boolean", "Boolean003")
body5.addObject(boolean4)
boolean4.Type = "Fuse"
boolean4.addObjects([body4])

doc.recompute()
